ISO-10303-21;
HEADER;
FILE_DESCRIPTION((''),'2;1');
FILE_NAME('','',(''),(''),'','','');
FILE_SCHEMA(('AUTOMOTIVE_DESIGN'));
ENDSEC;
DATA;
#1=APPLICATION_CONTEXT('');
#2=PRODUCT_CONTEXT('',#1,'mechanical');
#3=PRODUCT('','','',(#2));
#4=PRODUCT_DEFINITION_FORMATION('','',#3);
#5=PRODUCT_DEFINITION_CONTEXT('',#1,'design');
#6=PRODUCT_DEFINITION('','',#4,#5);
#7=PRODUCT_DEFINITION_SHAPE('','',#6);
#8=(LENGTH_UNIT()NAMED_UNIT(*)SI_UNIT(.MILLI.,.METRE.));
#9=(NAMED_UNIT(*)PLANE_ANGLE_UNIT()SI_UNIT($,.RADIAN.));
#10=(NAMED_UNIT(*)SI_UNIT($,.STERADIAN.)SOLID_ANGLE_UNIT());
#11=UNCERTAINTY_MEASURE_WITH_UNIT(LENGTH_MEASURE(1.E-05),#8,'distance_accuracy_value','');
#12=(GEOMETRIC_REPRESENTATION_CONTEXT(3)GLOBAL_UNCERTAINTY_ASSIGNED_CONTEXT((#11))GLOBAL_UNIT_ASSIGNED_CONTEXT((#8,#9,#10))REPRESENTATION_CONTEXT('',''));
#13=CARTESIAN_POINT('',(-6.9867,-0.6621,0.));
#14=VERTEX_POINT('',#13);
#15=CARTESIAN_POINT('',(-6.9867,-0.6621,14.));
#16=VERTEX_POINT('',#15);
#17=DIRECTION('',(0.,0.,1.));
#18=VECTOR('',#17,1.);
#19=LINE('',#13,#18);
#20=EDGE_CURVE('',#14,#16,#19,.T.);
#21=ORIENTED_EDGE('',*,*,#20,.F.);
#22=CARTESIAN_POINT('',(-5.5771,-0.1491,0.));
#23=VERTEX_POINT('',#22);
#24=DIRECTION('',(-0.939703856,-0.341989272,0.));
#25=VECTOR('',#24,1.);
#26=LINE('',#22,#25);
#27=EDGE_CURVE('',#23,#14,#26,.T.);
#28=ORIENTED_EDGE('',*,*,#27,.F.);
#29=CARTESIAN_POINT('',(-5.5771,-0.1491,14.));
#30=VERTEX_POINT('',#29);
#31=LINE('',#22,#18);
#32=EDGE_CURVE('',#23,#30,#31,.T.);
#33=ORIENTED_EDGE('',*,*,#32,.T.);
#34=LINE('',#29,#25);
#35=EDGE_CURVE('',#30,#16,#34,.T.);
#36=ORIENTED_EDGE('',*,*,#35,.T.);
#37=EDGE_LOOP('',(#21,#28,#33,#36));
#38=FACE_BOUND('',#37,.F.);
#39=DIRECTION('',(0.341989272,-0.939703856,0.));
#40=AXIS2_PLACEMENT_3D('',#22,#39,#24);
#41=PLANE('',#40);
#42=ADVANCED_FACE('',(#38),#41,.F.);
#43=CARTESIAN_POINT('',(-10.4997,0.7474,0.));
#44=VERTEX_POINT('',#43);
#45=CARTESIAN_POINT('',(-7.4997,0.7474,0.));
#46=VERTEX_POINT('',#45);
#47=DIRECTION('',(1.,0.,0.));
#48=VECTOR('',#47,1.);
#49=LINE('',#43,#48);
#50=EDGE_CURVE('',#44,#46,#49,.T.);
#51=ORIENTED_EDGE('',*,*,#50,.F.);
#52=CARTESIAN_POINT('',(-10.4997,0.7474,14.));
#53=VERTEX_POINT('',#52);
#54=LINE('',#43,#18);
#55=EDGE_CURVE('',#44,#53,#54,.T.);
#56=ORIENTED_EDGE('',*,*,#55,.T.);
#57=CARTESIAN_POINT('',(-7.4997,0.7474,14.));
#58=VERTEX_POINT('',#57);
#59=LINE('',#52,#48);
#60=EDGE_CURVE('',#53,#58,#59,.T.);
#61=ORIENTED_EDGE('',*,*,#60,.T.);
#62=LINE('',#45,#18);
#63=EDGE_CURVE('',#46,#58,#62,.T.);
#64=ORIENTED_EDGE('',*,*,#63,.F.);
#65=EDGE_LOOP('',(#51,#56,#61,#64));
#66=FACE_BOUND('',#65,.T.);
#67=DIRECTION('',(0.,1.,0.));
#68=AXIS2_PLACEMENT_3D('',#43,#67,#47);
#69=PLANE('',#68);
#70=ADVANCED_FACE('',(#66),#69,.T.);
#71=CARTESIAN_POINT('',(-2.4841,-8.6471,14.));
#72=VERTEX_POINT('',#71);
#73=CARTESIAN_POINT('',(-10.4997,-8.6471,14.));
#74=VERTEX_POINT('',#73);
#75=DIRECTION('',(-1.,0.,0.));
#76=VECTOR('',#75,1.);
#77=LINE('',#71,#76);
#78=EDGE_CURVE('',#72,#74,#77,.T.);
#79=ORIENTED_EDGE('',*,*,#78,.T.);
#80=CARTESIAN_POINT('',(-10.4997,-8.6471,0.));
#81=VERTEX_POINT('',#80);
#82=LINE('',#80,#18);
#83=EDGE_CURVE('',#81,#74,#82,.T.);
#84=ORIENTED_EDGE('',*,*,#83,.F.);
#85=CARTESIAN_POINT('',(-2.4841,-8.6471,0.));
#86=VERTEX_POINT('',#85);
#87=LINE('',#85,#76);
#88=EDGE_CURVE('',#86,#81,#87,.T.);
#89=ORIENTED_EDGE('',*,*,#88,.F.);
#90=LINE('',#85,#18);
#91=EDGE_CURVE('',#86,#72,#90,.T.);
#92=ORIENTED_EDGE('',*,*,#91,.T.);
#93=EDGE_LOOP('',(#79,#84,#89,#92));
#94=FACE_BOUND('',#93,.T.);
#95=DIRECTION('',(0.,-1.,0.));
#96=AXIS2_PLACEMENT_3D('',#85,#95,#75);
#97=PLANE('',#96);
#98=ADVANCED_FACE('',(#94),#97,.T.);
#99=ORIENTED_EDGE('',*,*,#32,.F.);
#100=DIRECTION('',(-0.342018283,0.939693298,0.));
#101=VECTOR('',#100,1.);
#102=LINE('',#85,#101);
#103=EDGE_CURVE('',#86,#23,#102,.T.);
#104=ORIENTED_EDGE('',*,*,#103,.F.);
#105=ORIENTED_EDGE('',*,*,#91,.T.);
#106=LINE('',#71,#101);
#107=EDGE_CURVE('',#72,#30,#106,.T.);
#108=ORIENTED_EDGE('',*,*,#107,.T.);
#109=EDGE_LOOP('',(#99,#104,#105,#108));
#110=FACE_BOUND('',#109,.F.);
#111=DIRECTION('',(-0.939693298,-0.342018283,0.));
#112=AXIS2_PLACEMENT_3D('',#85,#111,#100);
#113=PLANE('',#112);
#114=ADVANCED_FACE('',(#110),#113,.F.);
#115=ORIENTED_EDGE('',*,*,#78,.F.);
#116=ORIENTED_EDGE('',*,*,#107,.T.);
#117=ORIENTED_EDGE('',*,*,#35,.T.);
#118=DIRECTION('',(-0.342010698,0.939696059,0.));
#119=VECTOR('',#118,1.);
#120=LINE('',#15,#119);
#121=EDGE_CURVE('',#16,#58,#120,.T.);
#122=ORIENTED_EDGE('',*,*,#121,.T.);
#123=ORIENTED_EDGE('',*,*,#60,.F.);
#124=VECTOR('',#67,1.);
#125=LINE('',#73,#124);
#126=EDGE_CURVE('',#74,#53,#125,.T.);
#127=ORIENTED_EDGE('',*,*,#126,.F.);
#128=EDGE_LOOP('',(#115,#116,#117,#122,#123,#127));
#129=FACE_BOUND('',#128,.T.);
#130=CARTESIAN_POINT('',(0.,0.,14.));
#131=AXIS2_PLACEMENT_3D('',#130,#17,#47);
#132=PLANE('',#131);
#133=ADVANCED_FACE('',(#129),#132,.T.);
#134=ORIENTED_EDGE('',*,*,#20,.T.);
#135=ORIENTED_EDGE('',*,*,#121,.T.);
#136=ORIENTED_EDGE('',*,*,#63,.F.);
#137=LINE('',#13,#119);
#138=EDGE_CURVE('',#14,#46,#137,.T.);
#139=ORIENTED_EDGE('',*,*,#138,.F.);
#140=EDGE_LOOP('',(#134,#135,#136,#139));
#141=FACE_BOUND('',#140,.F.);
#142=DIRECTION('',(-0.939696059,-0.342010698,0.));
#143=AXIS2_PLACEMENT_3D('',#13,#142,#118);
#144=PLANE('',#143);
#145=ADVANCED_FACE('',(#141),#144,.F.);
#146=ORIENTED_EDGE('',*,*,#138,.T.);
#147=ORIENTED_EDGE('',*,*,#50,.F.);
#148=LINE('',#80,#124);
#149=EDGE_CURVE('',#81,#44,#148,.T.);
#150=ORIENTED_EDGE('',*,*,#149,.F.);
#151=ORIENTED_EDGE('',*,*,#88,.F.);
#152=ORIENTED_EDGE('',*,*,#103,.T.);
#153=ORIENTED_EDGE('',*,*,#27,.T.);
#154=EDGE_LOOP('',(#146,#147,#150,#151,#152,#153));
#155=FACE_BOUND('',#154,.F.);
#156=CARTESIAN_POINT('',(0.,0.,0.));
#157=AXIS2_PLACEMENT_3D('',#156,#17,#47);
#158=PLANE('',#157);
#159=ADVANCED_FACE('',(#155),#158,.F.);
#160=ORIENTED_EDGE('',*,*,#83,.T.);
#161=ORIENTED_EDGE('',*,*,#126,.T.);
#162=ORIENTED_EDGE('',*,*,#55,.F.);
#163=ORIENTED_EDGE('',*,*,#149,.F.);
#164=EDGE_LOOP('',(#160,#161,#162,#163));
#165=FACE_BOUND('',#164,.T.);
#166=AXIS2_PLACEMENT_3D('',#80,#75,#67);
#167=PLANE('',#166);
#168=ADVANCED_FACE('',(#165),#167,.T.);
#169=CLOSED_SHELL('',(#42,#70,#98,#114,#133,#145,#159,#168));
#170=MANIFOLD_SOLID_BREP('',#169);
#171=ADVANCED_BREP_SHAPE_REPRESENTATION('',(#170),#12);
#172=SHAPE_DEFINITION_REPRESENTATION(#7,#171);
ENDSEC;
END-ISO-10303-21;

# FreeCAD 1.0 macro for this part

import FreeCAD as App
import Part
import Sketcher

V = App.Vector
Q = App.Units.Quantity


def add_polygon(sketch, points):
    """Adds a closed chain of lines whose ends are joined by coincident constraints."""
    first, n = sketch.GeometryCount, len(points)
    for a, b in zip(points, points[1:] + points[:1]):
        sketch.addGeometry(Part.LineSegment(App.Vector(*a, 0), App.Vector(*b, 0)), False)
    for i in range(n):
        sketch.addConstraint(Sketcher.Constraint("Coincident", first + i, 2, first + (i + 1) % n, 1))

doc = App.newDocument("Part")
body = doc.addObject("PartDesign::Body", "Body")

# Sketch on XY plane
sketch1 = body.newObject("Sketcher::SketchObject", "Sketch")
sketch1.AttachmentSupport = (doc.getObject("XY_Plane"), [""])
sketch1.MapMode = "FlatFace"
add_polygon(sketch1, [(-2.4841, -8.6471), (-5.5771, -0.1491), (-6.9867, -0.6621), (-7.4997, 0.7474), (-10.4997, 0.7474), (-10.4997, -8.6471)])  # lines 0-5
sketch1.addConstraint([
    Sketcher.Constraint("Horizontal", 3),
    Sketcher.Constraint("Vertical", 4),
    Sketcher.Constraint("Horizontal", 5),
    Sketcher.Constraint("Perpendicular", 0, 1),
    Sketcher.Constraint("Perpendicular", 1, 2),
    Sketcher.Constraint("Equal", 1, 2),
    Sketcher.Constraint("DistanceX", 3, 2, 3, 1, Q("3 mm")),
    Sketcher.Constraint("Distance", 1, Q("1.5 mm")),
    Sketcher.Constraint("Angle", 0, Q("110 deg")),
    Sketcher.Constraint("DistanceY", 4, 2, 0, 2, Q("8.498 mm")),
    Sketcher.Constraint("DistanceX", 0, 2, -1, 1, Q("5.577 mm")),
    Sketcher.Constraint("DistanceY", 0, 2, -1, 1, Q("0.149 mm")),
])
pad1 = body.newObject("PartDesign::Pad", "Pad")
pad1.Profile = sketch1
pad1.Length = 14

doc.recompute()
